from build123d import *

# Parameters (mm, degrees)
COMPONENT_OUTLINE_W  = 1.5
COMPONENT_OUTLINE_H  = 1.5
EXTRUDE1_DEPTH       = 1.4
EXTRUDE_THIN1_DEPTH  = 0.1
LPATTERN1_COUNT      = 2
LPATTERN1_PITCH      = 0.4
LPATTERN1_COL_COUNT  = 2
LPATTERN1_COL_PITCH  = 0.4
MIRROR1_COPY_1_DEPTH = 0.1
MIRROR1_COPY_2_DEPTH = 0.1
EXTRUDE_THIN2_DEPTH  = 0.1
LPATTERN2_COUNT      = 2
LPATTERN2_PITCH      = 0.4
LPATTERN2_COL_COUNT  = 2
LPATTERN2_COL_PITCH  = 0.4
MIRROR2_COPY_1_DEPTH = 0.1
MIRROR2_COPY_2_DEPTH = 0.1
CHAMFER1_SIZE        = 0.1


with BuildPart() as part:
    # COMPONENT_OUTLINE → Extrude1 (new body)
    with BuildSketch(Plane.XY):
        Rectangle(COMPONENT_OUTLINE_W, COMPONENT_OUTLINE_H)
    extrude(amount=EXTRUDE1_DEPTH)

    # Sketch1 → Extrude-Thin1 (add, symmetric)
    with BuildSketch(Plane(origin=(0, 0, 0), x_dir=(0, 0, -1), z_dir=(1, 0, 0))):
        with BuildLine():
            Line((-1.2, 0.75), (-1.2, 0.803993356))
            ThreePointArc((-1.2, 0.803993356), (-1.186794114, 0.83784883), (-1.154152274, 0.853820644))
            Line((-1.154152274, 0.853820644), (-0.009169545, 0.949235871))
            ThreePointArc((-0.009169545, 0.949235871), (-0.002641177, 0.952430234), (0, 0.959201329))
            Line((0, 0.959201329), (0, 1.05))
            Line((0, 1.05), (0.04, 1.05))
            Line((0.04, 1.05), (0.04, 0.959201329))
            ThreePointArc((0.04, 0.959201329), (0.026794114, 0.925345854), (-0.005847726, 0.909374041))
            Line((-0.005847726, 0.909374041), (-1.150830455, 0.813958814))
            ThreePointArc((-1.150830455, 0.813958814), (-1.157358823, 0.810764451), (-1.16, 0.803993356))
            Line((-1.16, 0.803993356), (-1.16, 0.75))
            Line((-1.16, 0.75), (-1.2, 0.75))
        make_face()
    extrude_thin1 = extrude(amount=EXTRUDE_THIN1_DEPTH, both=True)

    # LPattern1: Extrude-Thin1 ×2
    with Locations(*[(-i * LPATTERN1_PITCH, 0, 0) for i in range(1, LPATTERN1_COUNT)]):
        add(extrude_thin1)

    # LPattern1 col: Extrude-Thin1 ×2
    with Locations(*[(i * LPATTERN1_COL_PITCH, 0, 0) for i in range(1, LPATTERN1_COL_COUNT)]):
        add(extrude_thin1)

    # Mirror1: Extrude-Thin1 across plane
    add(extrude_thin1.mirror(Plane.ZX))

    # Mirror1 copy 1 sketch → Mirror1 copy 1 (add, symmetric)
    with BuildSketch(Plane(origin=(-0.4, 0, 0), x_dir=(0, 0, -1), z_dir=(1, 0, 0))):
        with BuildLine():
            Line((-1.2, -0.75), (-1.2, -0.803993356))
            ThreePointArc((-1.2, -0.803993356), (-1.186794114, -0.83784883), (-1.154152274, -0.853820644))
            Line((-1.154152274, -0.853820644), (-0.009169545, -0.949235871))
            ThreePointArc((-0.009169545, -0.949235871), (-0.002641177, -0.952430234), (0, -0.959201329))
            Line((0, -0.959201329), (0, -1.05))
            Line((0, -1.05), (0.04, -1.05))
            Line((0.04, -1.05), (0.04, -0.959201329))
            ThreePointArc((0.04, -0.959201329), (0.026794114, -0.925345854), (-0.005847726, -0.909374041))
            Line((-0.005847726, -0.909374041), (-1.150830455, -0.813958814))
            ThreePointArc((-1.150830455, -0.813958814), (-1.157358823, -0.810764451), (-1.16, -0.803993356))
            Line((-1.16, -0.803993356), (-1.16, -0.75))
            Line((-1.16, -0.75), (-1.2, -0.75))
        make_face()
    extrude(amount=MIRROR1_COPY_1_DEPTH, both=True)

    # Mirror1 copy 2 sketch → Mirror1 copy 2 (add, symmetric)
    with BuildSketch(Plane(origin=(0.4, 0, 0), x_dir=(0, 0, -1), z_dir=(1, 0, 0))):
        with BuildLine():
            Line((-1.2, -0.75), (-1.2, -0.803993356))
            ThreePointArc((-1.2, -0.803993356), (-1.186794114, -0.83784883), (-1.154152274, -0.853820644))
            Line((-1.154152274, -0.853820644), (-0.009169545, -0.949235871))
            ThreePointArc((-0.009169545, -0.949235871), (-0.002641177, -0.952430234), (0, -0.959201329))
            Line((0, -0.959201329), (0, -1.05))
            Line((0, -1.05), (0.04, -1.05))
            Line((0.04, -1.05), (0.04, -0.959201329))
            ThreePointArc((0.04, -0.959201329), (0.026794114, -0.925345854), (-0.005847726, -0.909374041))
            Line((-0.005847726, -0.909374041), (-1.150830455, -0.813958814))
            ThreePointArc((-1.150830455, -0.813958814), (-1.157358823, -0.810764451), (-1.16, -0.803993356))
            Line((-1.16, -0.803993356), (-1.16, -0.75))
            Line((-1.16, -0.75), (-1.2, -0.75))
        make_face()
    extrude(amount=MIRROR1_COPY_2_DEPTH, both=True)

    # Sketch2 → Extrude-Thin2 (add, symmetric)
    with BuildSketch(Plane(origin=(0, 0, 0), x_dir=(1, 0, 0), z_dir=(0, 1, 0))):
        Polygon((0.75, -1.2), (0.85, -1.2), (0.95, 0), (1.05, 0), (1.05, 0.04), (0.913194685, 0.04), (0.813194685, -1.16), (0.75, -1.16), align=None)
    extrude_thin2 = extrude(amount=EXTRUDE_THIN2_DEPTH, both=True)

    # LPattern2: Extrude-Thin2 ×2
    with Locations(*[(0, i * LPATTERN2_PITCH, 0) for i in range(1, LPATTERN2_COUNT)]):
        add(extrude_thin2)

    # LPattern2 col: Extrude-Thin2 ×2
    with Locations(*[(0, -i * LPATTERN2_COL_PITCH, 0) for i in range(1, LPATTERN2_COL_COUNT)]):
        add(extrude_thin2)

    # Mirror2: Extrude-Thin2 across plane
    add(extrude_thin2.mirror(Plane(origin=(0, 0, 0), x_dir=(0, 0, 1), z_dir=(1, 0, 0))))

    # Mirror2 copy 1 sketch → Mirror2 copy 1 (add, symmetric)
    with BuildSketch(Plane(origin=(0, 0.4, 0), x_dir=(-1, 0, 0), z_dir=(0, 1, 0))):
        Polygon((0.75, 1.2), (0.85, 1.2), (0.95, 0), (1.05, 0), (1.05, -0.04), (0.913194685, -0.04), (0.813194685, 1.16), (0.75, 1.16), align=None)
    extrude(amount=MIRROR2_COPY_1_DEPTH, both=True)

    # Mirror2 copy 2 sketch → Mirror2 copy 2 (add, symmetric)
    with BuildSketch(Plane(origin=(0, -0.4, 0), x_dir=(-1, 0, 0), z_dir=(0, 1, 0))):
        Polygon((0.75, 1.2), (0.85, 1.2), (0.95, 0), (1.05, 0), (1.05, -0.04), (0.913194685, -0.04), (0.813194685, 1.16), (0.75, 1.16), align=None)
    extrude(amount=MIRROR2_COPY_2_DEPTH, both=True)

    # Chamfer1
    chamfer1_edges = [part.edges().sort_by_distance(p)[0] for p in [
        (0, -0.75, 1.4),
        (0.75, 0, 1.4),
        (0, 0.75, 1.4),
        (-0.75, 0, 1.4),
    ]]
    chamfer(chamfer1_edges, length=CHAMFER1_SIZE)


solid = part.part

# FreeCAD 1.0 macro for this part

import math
import FreeCAD as App
import Part
import Sketcher


def edges_at(feature, points):
    """Names of the edges that pass closest to the given points."""
    edges = feature.Shape.Edges
    near = lambda p: min(range(len(edges)), key=lambda i: edges[i].distToShape(Part.Vertex(*p))[0])
    return sorted({f"Edge{near(p) + 1}" for p in points})


def add_polygon(sketch, points):
    """Adds a closed chain of lines whose ends are joined by coincident constraints."""
    first, n = sketch.GeometryCount, len(points)
    for a, b in zip(points, points[1:] + points[:1]):
        sketch.addGeometry(Part.LineSegment(App.Vector(*a, 0), App.Vector(*b, 0)), False)
    for i in range(n):
        sketch.addConstraint(Sketcher.Constraint("Coincident", first + i, 2, first + (i + 1) % n, 1))

doc = App.newDocument("Part")
params = doc.addObject("Spreadsheet::Sheet", "Params")
for row, (alias, value) in enumerate([
    ("sketch1_width", "1.5 mm"),
    ("pad1_length", "1.4 mm"),
    ("sketch2_radius", "0.01 mm"),
    ("sketch2_radius2", "0.05 mm"),
    ("pad2_length", "0.2 mm"),
    ("linearpattern_pitch", "0.4 mm"),
    ("linearpattern2_pitch", "0.4 mm"),
    ("sketch3_radius", "0.05 mm"),
    ("sketch3_radius2", "0.01 mm"),
    ("pad3_length", "0.2 mm"),
    ("sketch4_radius", "0.05 mm"),
    ("sketch4_radius2", "0.01 mm"),
    ("pad4_length", "0.2 mm"),
    ("sketch5_width", "0.1 mm"),
    ("sketch5_height", "0.04 mm"),
    ("pad5_length", "0.2 mm"),
    ("linearpattern3_pitch", "0.4 mm"),
    ("linearpattern4_pitch", "0.4 mm"),
    ("sketch6_width", "0.1 mm"),
    ("sketch6_height", "0.04 mm"),
    ("pad6_length", "0.2 mm"),
    ("sketch7_width", "0.1 mm"),
    ("sketch7_height", "0.04 mm"),
    ("pad7_length", "0.2 mm"),
    ("chamfer_size", "0.1 mm"),
], start=1):
    params.set(f"A{row}", alias)
    params.set(f"B{row}", "=" + value)
    params.setAlias(f"B{row}", alias)

body = doc.addObject("PartDesign::Body", "Body")

# Sketch on XY plane
sketch1 = body.newObject("Sketcher::SketchObject", "Sketch")
sketch1.AttachmentSupport = (doc.getObject("XY_Plane"), [""])
sketch1.MapMode = "FlatFace"
add_polygon(sketch1, [(-0.8, 0.8), (-0.8, -0.8), (0.8, -0.8), (0.8, 0.8)])  # lines 0-3
sketch1.addConstraint([
    Sketcher.Constraint("Vertical", 0),
    Sketcher.Constraint("Horizontal", 1),
    Sketcher.Constraint("Vertical", 2),
    Sketcher.Constraint("Horizontal", 3),
    Sketcher.Constraint("Symmetric", 0, 2, 2, 2, -1, 1),
    Sketcher.Constraint("Equal", 3, 0),
    Sketcher.Constraint("DistanceX", 1, 1, 1, 2, 1.5),
])
sketch1.setExpression("Constraints[10]", "Params.sketch1_width")
pad1 = body.newObject("PartDesign::Pad", "Pad")
pad1.Profile = sketch1
pad1.setExpression("Length", "Params.pad1_length")

# Sketch on YZ plane
sketch2 = body.newObject("Sketcher::SketchObject", "Sketch001")
sketch2.AttachmentSupport = (doc.getObject("YZ_Plane"), [""])
sketch2.MapMode = "FlatFace"
sketch2.addGeometry([
    Part.LineSegment(App.Vector(0.804, 1.2, 0), App.Vector(0.75, 1.2, 0)),  # 0
    Part.LineSegment(App.Vector(0.75, 1.2, 0), App.Vector(0.75, 1.16, 0)),  # 1
    Part.LineSegment(App.Vector(0.75, 1.16, 0), App.Vector(0.804, 1.16, 0)),  # 2
    Part.ArcOfCircle(Part.Circle(App.Vector(0.804, 1.15, 0), App.Vector(0, 0, 1), 0.01), math.radians(5), math.radians(90)),  # 3
    Part.LineSegment(App.Vector(0.814, 1.151, 0), App.Vector(0.909, 0.006, 0)),  # 4
    Part.ArcOfCircle(Part.Circle(App.Vector(0.959, 0.01, 0), App.Vector(0, 0, 1), 0.05), math.radians(-175), math.radians(-90)),  # 5
    Part.LineSegment(App.Vector(0.959, -0.04, 0), App.Vector(1.05, -0.04, 0)),  # 6
    Part.LineSegment(App.Vector(1.05, -0.04, 0), App.Vector(1.05, 0, 0)),  # 7
    Part.LineSegment(App.Vector(1.05, 0, 0), App.Vector(0.959, 0, 0)),  # 8
    Part.ArcOfCircle(Part.Circle(App.Vector(0.959, 0.01, 0), App.Vector(0, 0, 1), 0.01), math.radians(-175), math.radians(-90)),  # 9
    Part.LineSegment(App.Vector(0.949, 0.009, 0), App.Vector(0.854, 1.154, 0)),  # 10
    Part.ArcOfCircle(Part.Circle(App.Vector(0.804, 1.15, 0), App.Vector(0, 0, 1), 0.05), math.radians(5), math.radians(90)),  # 11
], False)
sketch2.addConstraint([
    Sketcher.Constraint("Coincident", 0, 2, 1, 1),
    Sketcher.Constraint("Coincident", 1, 2, 2, 1),
    Sketcher.Constraint("Tangent", 2, 2, 3, 2),
    Sketcher.Constraint("Tangent", 3, 1, 4, 1),
    Sketcher.Constraint("Tangent", 4, 2, 5, 1),
    Sketcher.Constraint("Tangent", 5, 2, 6, 1),
    Sketcher.Constraint("Coincident", 6, 2, 7, 1),
    Sketcher.Constraint("Coincident", 7, 2, 8, 1),
    Sketcher.Constraint("Tangent", 8, 2, 9, 2),
    Sketcher.Constraint("Tangent", 9, 1, 10, 1),
    Sketcher.Constraint("Tangent", 10, 2, 11, 1),
    Sketcher.Constraint("Tangent", 11, 2, 0, 1),
    Sketcher.Constraint("Horizontal", 0),
    Sketcher.Constraint("Vertical", 1),
    Sketcher.Constraint("Horizontal", 2),
    Sketcher.Constraint("Horizontal", 6),
    Sketcher.Constraint("Vertical", 7),
    Sketcher.Constraint("Horizontal", 8),
    Sketcher.Constraint("Coincident", 9, 3, 5, 3),
    Sketcher.Constraint("Coincident", 11, 3, 3, 3),
    Sketcher.Constraint("Equal", 3, 9),
    Sketcher.Constraint("Equal", 5, 11),
    Sketcher.Constraint("PointOnObject", 7, 2, -1),
    Sketcher.Constraint("Radius", 3, 0.01),
    Sketcher.Constraint("Radius", 5, 0.05),
    Sketcher.Constraint("DistanceY", -1, 1, 0, 2, 1.2),
    Sketcher.Constraint("DistanceX", -1, 1, 0, 2, 0.75),
    Sketcher.Constraint("DistanceX", -1, 1, 6, 2, 1.05),
    Sketcher.Constraint("DistanceX", 6, 1, 6, 2, 0.090799),
    Sketcher.Constraint("Distance", 4, 1.148951),
])
sketch2.setExpression("Constraints[23]", "Params.sketch2_radius")
sketch2.setExpression("Constraints[24]", "Params.sketch2_radius2")
pad2 = body.newObject("PartDesign::Pad", "Pad001")
pad2.Profile = sketch2
pad2.setExpression("Length", "Params.pad2_length")
pad2.Midplane = True
doc.recompute()

linearpattern = body.newObject("PartDesign::LinearPattern", "LinearPattern")
linearpattern.Originals = [pad2]
linearpattern.Direction = (doc.getObject("X_Axis"), [""])
linearpattern.Mode = "offset"
linearpattern.setExpression("Offset", "Params.linearpattern_pitch")
linearpattern.Occurrences = 2
linearpattern.Reversed = True
body.Tip = linearpattern
doc.recompute()

linearpattern2 = body.newObject("PartDesign::LinearPattern", "LinearPattern001")
linearpattern2.Originals = [pad2]
linearpattern2.Direction = (doc.getObject("X_Axis"), [""])
linearpattern2.Mode = "offset"
linearpattern2.setExpression("Offset", "Params.linearpattern2_pitch")
linearpattern2.Occurrences = 2
body.Tip = linearpattern2
doc.recompute()

mirrored = body.newObject("PartDesign::Mirrored", "Mirrored")
mirrored.Originals = [pad2]
mirrored.MirrorPlane = (doc.getObject("XZ_Plane"), [""])
body.Tip = mirrored

# Sketch on YZ plane
sketch3 = body.newObject("Sketcher::SketchObject", "Sketch002")
sketch3.AttachmentSupport = (doc.getObject("YZ_Plane"), [""])
sketch3.MapMode = "FlatFace"
sketch3.AttachmentOffset = App.Placement(App.Vector(0, 0, -0.4), App.Rotation())
sketch3.addGeometry([
    Part.LineSegment(App.Vector(-0.75, 1.2, 0), App.Vector(-0.804, 1.2, 0)),  # 0
    Part.ArcOfCircle(Part.Circle(App.Vector(-0.804, 1.15, 0), App.Vector(0, 0, 1), 0.05), math.radians(90), math.radians(175)),  # 1
    Part.LineSegment(App.Vector(-0.854, 1.154, 0), App.Vector(-0.949, 0.009, 0)),  # 2
    Part.ArcOfCircle(Part.Circle(App.Vector(-0.959, 0.01, 0), App.Vector(0, 0, 1), 0.01), math.radians(-90), math.radians(-5)),  # 3
    Part.LineSegment(App.Vector(-0.959, 0, 0), App.Vector(-1.05, 0, 0)),  # 4
    Part.LineSegment(App.Vector(-1.05, 0, 0), App.Vector(-1.05, -0.04, 0)),  # 5
    Part.LineSegment(App.Vector(-1.05, -0.04, 0), App.Vector(-0.959, -0.04, 0)),  # 6
    Part.ArcOfCircle(Part.Circle(App.Vector(-0.959, 0.01, 0), App.Vector(0, 0, 1), 0.05), math.radians(-90), math.radians(-5)),  # 7
    Part.LineSegment(App.Vector(-0.909, 0.006, 0), App.Vector(-0.814, 1.151, 0)),  # 8
    Part.ArcOfCircle(Part.Circle(App.Vector(-0.804, 1.15, 0), App.Vector(0, 0, 1), 0.01), math.radians(90), math.radians(175)),  # 9
    Part.LineSegment(App.Vector(-0.804, 1.16, 0), App.Vector(-0.75, 1.16, 0)),  # 10
    Part.LineSegment(App.Vector(-0.75, 1.16, 0), App.Vector(-0.75, 1.2, 0)),  # 11
], False)
sketch3.addConstraint([
    Sketcher.Constraint("Tangent", 0, 2, 1, 1),
    Sketcher.Constraint("Tangent", 1, 2, 2, 1),
    Sketcher.Constraint("Tangent", 2, 2, 3, 2),
    Sketcher.Constraint("Tangent", 3, 1, 4, 1),
    Sketcher.Constraint("Coincident", 4, 2, 5, 1),
    Sketcher.Constraint("Coincident", 5, 2, 6, 1),
    Sketcher.Constraint("Tangent", 6, 2, 7, 1),
    Sketcher.Constraint("Tangent", 7, 2, 8, 1),
    Sketcher.Constraint("Tangent", 8, 2, 9, 2),
    Sketcher.Constraint("Tangent", 9, 1, 10, 1),
    Sketcher.Constraint("Coincident", 10, 2, 11, 1),
    Sketcher.Constraint("Coincident", 11, 2, 0, 1),
    Sketcher.Constraint("Horizontal", 0),
    Sketcher.Constraint("Horizontal", 4),
    Sketcher.Constraint("Vertical", 5),
    Sketcher.Constraint("Horizontal", 6),
    Sketcher.Constraint("Horizontal", 10),
    Sketcher.Constraint("Vertical", 11),
    Sketcher.Constraint("Coincident", 7, 3, 3, 3),
    Sketcher.Constraint("Coincident", 9, 3, 1, 3),
    Sketcher.Constraint("Equal", 1, 7),
    Sketcher.Constraint("Equal", 3, 9),
    Sketcher.Constraint("PointOnObject", 3, 1, -1),
    Sketcher.Constraint("Radius", 1, 0.05),
    Sketcher.Constraint("Radius", 3, 0.01),
    Sketcher.Constraint("DistanceY", -1, 1, 0, 2, 1.2),
    Sketcher.Constraint("DistanceX", 4, 2, -1, 1, 1.05),
    Sketcher.Constraint("DistanceX", 10, 2, -1, 1, 0.75),
    Sketcher.Constraint("DistanceX", 4, 2, 4, 1, 0.090799),
    Sketcher.Constraint("Distance", 2, 1.148951),
])
sketch3.setExpression("Constraints[23]", "Params.sketch3_radius")
sketch3.setExpression("Constraints[24]", "Params.sketch3_radius2")
pad3 = body.newObject("PartDesign::Pad", "Pad002")
pad3.Profile = sketch3
pad3.setExpression("Length", "Params.pad3_length")
pad3.Midplane = True

# Sketch on YZ plane
sketch4 = body.newObject("Sketcher::SketchObject", "Sketch003")
sketch4.AttachmentSupport = (doc.getObject("YZ_Plane"), [""])
sketch4.MapMode = "FlatFace"
sketch4.AttachmentOffset = App.Placement(App.Vector(0, 0, 0.4), App.Rotation())
sketch4.addGeometry([
    Part.LineSegment(App.Vector(-0.75, 1.2, 0), App.Vector(-0.804, 1.2, 0)),  # 0
    Part.ArcOfCircle(Part.Circle(App.Vector(-0.804, 1.15, 0), App.Vector(0, 0, 1), 0.05), math.radians(90), math.radians(175)),  # 1
    Part.LineSegment(App.Vector(-0.854, 1.154, 0), App.Vector(-0.949, 0.009, 0)),  # 2
    Part.ArcOfCircle(Part.Circle(App.Vector(-0.959, 0.01, 0), App.Vector(0, 0, 1), 0.01), math.radians(-90), math.radians(-5)),  # 3
    Part.LineSegment(App.Vector(-0.959, 0, 0), App.Vector(-1.05, 0, 0)),  # 4
    Part.LineSegment(App.Vector(-1.05, 0, 0), App.Vector(-1.05, -0.04, 0)),  # 5
    Part.LineSegment(App.Vector(-1.05, -0.04, 0), App.Vector(-0.959, -0.04, 0)),  # 6
    Part.ArcOfCircle(Part.Circle(App.Vector(-0.959, 0.01, 0), App.Vector(0, 0, 1), 0.05), math.radians(-90), math.radians(-5)),  # 7
    Part.LineSegment(App.Vector(-0.909, 0.006, 0), App.Vector(-0.814, 1.151, 0)),  # 8
    Part.ArcOfCircle(Part.Circle(App.Vector(-0.804, 1.15, 0), App.Vector(0, 0, 1), 0.01), math.radians(90), math.radians(175)),  # 9
    Part.LineSegment(App.Vector(-0.804, 1.16, 0), App.Vector(-0.75, 1.16, 0)),  # 10
    Part.LineSegment(App.Vector(-0.75, 1.16, 0), App.Vector(-0.75, 1.2, 0)),  # 11
], False)
sketch4.addConstraint([
    Sketcher.Constraint("Tangent", 0, 2, 1, 1),
    Sketcher.Constraint("Tangent", 1, 2, 2, 1),
    Sketcher.Constraint("Tangent", 2, 2, 3, 2),
    Sketcher.Constraint("Tangent", 3, 1, 4, 1),
    Sketcher.Constraint("Coincident", 4, 2, 5, 1),
    Sketcher.Constraint("Coincident", 5, 2, 6, 1),
    Sketcher.Constraint("Tangent", 6, 2, 7, 1),
    Sketcher.Constraint("Tangent", 7, 2, 8, 1),
    Sketcher.Constraint("Tangent", 8, 2, 9, 2),
    Sketcher.Constraint("Tangent", 9, 1, 10, 1),
    Sketcher.Constraint("Coincident", 10, 2, 11, 1),
    Sketcher.Constraint("Coincident", 11, 2, 0, 1),
    Sketcher.Constraint("Horizontal", 0),
    Sketcher.Constraint("Horizontal", 4),
    Sketcher.Constraint("Vertical", 5),
    Sketcher.Constraint("Horizontal", 6),
    Sketcher.Constraint("Horizontal", 10),
    Sketcher.Constraint("Vertical", 11),
    Sketcher.Constraint("Coincident", 7, 3, 3, 3),
    Sketcher.Constraint("Coincident", 9, 3, 1, 3),
    Sketcher.Constraint("Equal", 1, 7),
    Sketcher.Constraint("Equal", 3, 9),
    Sketcher.Constraint("PointOnObject", 3, 1, -1),
    Sketcher.Constraint("Radius", 1, 0.05),
    Sketcher.Constraint("Radius", 3, 0.01),
    Sketcher.Constraint("DistanceY", -1, 1, 0, 2, 1.2),
    Sketcher.Constraint("DistanceX", 4, 2, -1, 1, 1.05),
    Sketcher.Constraint("DistanceX", 10, 2, -1, 1, 0.75),
    Sketcher.Constraint("DistanceX", 4, 2, 4, 1, 0.090799),
    Sketcher.Constraint("Distance", 2, 1.148951),
])
sketch4.setExpression("Constraints[23]", "Params.sketch4_radius")
sketch4.setExpression("Constraints[24]", "Params.sketch4_radius2")
pad4 = body.newObject("PartDesign::Pad", "Pad003")
pad4.Profile = sketch4
pad4.setExpression("Length", "Params.pad4_length")
pad4.Midplane = True

# Sketch on XZ plane
sketch5 = body.newObject("Sketcher::SketchObject", "Sketch004")
sketch5.AttachmentSupport = (doc.getObject("XZ_Plane"), [""])
sketch5.MapMode = "FlatFace"
add_polygon(sketch5, [(0.75, 1.2), (0.85, 1.2), (0.95, 0), (1.05, 0), (1.05, -0.04), (0.913, -0.04), (0.813, 1.16), (0.75, 1.16)])  # lines 0-7
sketch5.addConstraint([
    Sketcher.Constraint("Horizontal", 0),
    Sketcher.Constraint("Horizontal", 2),
    Sketcher.Constraint("Vertical", 3),
    Sketcher.Constraint("Horizontal", 4),
    Sketcher.Constraint("Horizontal", 6),
    Sketcher.Constraint("Vertical", 7),
    Sketcher.Constraint("PointOnObject", 1, 2, -1),
    Sketcher.Constraint("Parallel", 1, 5),
    Sketcher.Constraint("Equal", 0, 2),
    Sketcher.Constraint("Equal", 3, 7),
    Sketcher.Constraint("DistanceX", 0, 1, 0, 2, 0.1),
    Sketcher.Constraint("DistanceY", 3, 2, 3, 1, 0.04),
    Sketcher.Constraint("DistanceY", -1, 1, 0, 2, 1.2),
    Sketcher.Constraint("DistanceX", 0, 2, 1, 2, 0.1),
    Sketcher.Constraint("DistanceX", -1, 1, 0, 2, 0.85),
    Sketcher.Constraint("DistanceX", 4, 2, 4, 1, 0.136805),
])
sketch5.setExpression("Constraints[18]", "Params.sketch5_width")
sketch5.setExpression("Constraints[19]", "Params.sketch5_height")
pad5 = body.newObject("PartDesign::Pad", "Pad004")
pad5.Profile = sketch5
pad5.setExpression("Length", "Params.pad5_length")
pad5.Midplane = True
doc.recompute()

linearpattern3 = body.newObject("PartDesign::LinearPattern", "LinearPattern002")
linearpattern3.Originals = [pad5]
linearpattern3.Direction = (doc.getObject("Y_Axis"), [""])
linearpattern3.Mode = "offset"
linearpattern3.setExpression("Offset", "Params.linearpattern3_pitch")
linearpattern3.Occurrences = 2
body.Tip = linearpattern3
doc.recompute()

linearpattern4 = body.newObject("PartDesign::LinearPattern", "LinearPattern003")
linearpattern4.Originals = [pad5]
linearpattern4.Direction = (doc.getObject("Y_Axis"), [""])
linearpattern4.Mode = "offset"
linearpattern4.setExpression("Offset", "Params.linearpattern4_pitch")
linearpattern4.Occurrences = 2
linearpattern4.Reversed = True
body.Tip = linearpattern4
doc.recompute()

mirrored2 = body.newObject("PartDesign::Mirrored", "Mirrored001")
mirrored2.Originals = [pad5]
mirrored2.MirrorPlane = (doc.getObject("YZ_Plane"), [""])
body.Tip = mirrored2

# Sketch on XZ plane
sketch6 = body.newObject("Sketcher::SketchObject", "Sketch005")
sketch6.AttachmentSupport = (doc.getObject("XZ_Plane"), [""])
sketch6.MapMode = "FlatFace"
sketch6.AttachmentOffset = App.Placement(App.Vector(0, 0, -0.4), App.Rotation())
add_polygon(sketch6, [(-0.85, 1.2), (-0.75, 1.2), (-0.75, 1.16), (-0.813, 1.16), (-0.913, -0.04), (-1.05, -0.04), (-1.05, 0), (-0.95, 0)])  # lines 0-7
sketch6.addConstraint([
    Sketcher.Constraint("Horizontal", 0),
    Sketcher.Constraint("Vertical", 1),
    Sketcher.Constraint("Horizontal", 2),
    Sketcher.Constraint("Horizontal", 4),
    Sketcher.Constraint("Vertical", 5),
    Sketcher.Constraint("Horizontal", 6),
    Sketcher.Constraint("PointOnObject", 5, 2, -1),
    Sketcher.Constraint("Parallel", 3, 7),
    Sketcher.Constraint("Equal", 0, 6),
    Sketcher.Constraint("Equal", 1, 5),
    Sketcher.Constraint("DistanceX", 0, 1, 0, 2, 0.1),
    Sketcher.Constraint("DistanceY", 1, 2, 1, 1, 0.04),
    Sketcher.Constraint("DistanceY", -1, 1, 0, 2, 1.2),
    Sketcher.Constraint("DistanceX", 3, 2, 2, 2, 0.1),
    Sketcher.Constraint("DistanceX", 0, 2, -1, 1, 0.75),
    Sketcher.Constraint("DistanceX", 2, 2, 2, 1, 0.063195),
])
sketch6.setExpression("Constraints[18]", "Params.sketch6_width")
sketch6.setExpression("Constraints[19]", "Params.sketch6_height")
pad6 = body.newObject("PartDesign::Pad", "Pad005")
pad6.Profile = sketch6
pad6.setExpression("Length", "Params.pad6_length")
pad6.Midplane = True

# Sketch on XZ plane
sketch7 = body.newObject("Sketcher::SketchObject", "Sketch006")
sketch7.AttachmentSupport = (doc.getObject("XZ_Plane"), [""])
sketch7.MapMode = "FlatFace"
sketch7.AttachmentOffset = App.Placement(App.Vector(0, 0, 0.4), App.Rotation())
add_polygon(sketch7, [(-0.85, 1.2), (-0.75, 1.2), (-0.75, 1.16), (-0.813, 1.16), (-0.913, -0.04), (-1.05, -0.04), (-1.05, 0), (-0.95, 0)])  # lines 0-7
sketch7.addConstraint([
    Sketcher.Constraint("Horizontal", 0),
    Sketcher.Constraint("Vertical", 1),
    Sketcher.Constraint("Horizontal", 2),
    Sketcher.Constraint("Horizontal", 4),
    Sketcher.Constraint("Vertical", 5),
    Sketcher.Constraint("Horizontal", 6),
    Sketcher.Constraint("PointOnObject", 5, 2, -1),
    Sketcher.Constraint("Parallel", 3, 7),
    Sketcher.Constraint("Equal", 0, 6),
    Sketcher.Constraint("Equal", 1, 5),
    Sketcher.Constraint("DistanceX", 0, 1, 0, 2, 0.1),
    Sketcher.Constraint("DistanceY", 1, 2, 1, 1, 0.04),
    Sketcher.Constraint("DistanceY", -1, 1, 0, 2, 1.2),
    Sketcher.Constraint("DistanceX", 3, 2, 2, 2, 0.1),
    Sketcher.Constraint("DistanceX", 0, 2, -1, 1, 0.75),
    Sketcher.Constraint("DistanceX", 2, 2, 2, 1, 0.063195),
])
sketch7.setExpression("Constraints[18]", "Params.sketch7_width")
sketch7.setExpression("Constraints[19]", "Params.sketch7_height")
pad7 = body.newObject("PartDesign::Pad", "Pad006")
pad7.Profile = sketch7
pad7.setExpression("Length", "Params.pad7_length")
pad7.Midplane = True
doc.recompute()

chamfer = body.newObject("PartDesign::Chamfer", "Chamfer")
chamfer.Base = (pad7, edges_at(pad7, [
    (0, -0.75, 1.4),
    (0.75, 0, 1.4),
    (0, 0.75, 1.4),
    (-0.75, 0, 1.4),
]))
chamfer.setExpression("Size", "Params.chamfer_size")

doc.recompute()
